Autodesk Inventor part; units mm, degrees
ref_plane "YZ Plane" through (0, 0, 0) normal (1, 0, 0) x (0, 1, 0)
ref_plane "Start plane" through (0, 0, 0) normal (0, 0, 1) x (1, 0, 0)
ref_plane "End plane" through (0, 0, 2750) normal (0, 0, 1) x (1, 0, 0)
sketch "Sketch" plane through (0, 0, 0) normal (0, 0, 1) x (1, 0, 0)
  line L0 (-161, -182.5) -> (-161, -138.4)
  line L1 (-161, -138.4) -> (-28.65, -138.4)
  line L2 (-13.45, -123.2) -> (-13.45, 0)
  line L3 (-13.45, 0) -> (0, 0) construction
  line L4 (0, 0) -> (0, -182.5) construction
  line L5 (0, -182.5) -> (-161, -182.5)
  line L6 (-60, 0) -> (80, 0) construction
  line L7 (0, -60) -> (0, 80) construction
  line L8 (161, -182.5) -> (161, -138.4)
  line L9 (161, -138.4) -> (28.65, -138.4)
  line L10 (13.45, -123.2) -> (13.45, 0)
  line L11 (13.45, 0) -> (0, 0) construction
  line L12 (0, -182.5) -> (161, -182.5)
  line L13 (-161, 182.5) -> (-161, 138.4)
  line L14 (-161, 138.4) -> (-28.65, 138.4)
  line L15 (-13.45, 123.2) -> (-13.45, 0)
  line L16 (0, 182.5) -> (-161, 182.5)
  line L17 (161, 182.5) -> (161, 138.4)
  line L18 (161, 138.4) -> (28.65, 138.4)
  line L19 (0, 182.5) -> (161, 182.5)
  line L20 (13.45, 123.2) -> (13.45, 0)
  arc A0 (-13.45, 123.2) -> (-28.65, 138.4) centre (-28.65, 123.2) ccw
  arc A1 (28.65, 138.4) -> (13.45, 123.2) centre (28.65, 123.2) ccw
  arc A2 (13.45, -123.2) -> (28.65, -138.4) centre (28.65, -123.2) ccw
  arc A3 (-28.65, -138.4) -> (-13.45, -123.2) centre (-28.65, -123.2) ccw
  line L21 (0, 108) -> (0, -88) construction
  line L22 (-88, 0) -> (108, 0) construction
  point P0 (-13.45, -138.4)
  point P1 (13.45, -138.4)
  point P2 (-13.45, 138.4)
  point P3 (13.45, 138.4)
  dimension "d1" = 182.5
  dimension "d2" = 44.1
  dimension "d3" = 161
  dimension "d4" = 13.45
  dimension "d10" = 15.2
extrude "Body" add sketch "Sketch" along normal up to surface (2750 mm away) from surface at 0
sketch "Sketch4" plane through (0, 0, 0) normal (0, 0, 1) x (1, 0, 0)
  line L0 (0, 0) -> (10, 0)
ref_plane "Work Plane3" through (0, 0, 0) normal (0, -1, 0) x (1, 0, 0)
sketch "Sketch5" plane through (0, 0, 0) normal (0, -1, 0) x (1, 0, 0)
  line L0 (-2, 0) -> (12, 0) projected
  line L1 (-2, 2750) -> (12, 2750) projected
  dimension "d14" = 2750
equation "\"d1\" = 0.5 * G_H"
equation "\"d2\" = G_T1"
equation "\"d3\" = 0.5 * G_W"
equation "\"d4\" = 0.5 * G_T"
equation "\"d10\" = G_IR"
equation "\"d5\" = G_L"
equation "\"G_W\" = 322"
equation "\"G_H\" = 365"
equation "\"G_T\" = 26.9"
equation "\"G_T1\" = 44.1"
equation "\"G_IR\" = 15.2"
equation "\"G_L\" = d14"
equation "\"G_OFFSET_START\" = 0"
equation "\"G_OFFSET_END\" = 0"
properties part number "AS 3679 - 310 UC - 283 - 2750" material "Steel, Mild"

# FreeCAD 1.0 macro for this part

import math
import FreeCAD as App
import Part
import Sketcher
from FreeCAD import Vector

doc = App.newDocument("Part")
body = doc.addObject("PartDesign::Body", "Body")

# Sketch on XY plane
sketch1 = body.newObject("Sketcher::SketchObject", "Sketch")
sketch1.AttachmentSupport = (doc.getObject("XY_Plane"), [""])
sketch1.MapMode = "FlatFace"
sketch1.addGeometry([
    Part.LineSegment(Vector(-161, -138, 0), Vector(-161, -182, 0)),  # 0
    Part.LineSegment(Vector(-161, -182, 0), Vector(161, -182, 0)),  # 1
    Part.LineSegment(Vector(161, -182, 0), Vector(161, -138, 0)),  # 2
    Part.LineSegment(Vector(161, -138, 0), Vector(29, -138, 0)),  # 3
    Part.ArcOfCircle(Part.Circle(Vector(29, -123, 0), Vector(0, 0, 1), 15), math.radians(180), math.radians(270)),  # 4
    Part.LineSegment(Vector(13, -123, 0), Vector(13, 123, 0)),  # 5
    Part.ArcOfCircle(Part.Circle(Vector(29, 123, 0), Vector(0, 0, 1), 15), math.radians(90), math.radians(180)),  # 6
    Part.LineSegment(Vector(29, 138, 0), Vector(161, 138, 0)),  # 7
    Part.LineSegment(Vector(161, 138, 0), Vector(161, 182, 0)),  # 8
    Part.LineSegment(Vector(161, 182, 0), Vector(-161, 182, 0)),  # 9
    Part.LineSegment(Vector(-161, 182, 0), Vector(-161, 138, 0)),  # 10
    Part.LineSegment(Vector(-161, 138, 0), Vector(-29, 138, 0)),  # 11
    Part.ArcOfCircle(Part.Circle(Vector(-29, 123, 0), Vector(0, 0, 1), 15), math.radians(0), math.radians(90)),  # 12
    Part.LineSegment(Vector(-13, 123, 0), Vector(-13, -123, 0)),  # 13
    Part.ArcOfCircle(Part.Circle(Vector(-29, -123, 0), Vector(0, 0, 1), 15), math.radians(-90), math.radians(0)),  # 14
    Part.LineSegment(Vector(-29, -138, 0), Vector(-161, -138, 0)),  # 15
], False)
sketch1.addConstraint([
    Sketcher.Constraint("Coincident", 0, 2, 1, 1),
    Sketcher.Constraint("Coincident", 1, 2, 2, 1),
    Sketcher.Constraint("Coincident", 2, 2, 3, 1),
    Sketcher.Constraint("Tangent", 3, 2, 4, 2),
    Sketcher.Constraint("Tangent", 4, 1, 5, 1),
    Sketcher.Constraint("Tangent", 5, 2, 6, 2),
    Sketcher.Constraint("Tangent", 6, 1, 7, 1),
    Sketcher.Constraint("Coincident", 7, 2, 8, 1),
    Sketcher.Constraint("Coincident", 8, 2, 9, 1),
    Sketcher.Constraint("Coincident", 9, 2, 10, 1),
    Sketcher.Constraint("Coincident", 10, 2, 11, 1),
    Sketcher.Constraint("Tangent", 11, 2, 12, 2),
    Sketcher.Constraint("Tangent", 12, 1, 13, 1),
    Sketcher.Constraint("Tangent", 13, 2, 14, 2),
    Sketcher.Constraint("Tangent", 14, 1, 15, 1),
    Sketcher.Constraint("Coincident", 15, 2, 0, 1),
    Sketcher.Constraint("Vertical", 0),
    Sketcher.Constraint("Horizontal", 1),
    Sketcher.Constraint("Vertical", 2),
    Sketcher.Constraint("Horizontal", 3),
    Sketcher.Constraint("Vertical", 5),
    Sketcher.Constraint("Horizontal", 7),
    Sketcher.Constraint("Vertical", 8),
    Sketcher.Constraint("Horizontal", 9),
    Sketcher.Constraint("Vertical", 10),
    Sketcher.Constraint("Horizontal", 11),
    Sketcher.Constraint("Vertical", 13),
    Sketcher.Constraint("Horizontal", 15),
    Sketcher.Constraint("Equal", 4, 6),
    Sketcher.Constraint("Equal", 6, 12),
    Sketcher.Constraint("Equal", 12, 14),
    Sketcher.Constraint("Symmetric", 4, 3, 12, 3, -1, 1),
    Sketcher.Constraint("Symmetric", 0, 2, 8, 2, -1, 1),
    Sketcher.Constraint("Symmetric", 7, 2, 10, 2, -2),
    Sketcher.Constraint("Symmetric", 2, 2, 15, 2, -2),
    Sketcher.Constraint("Radius", 4, 15.2),
    Sketcher.Constraint("DistanceY", 0, 2, 0, 1, 44.1),
    Sketcher.Constraint("DistanceX", 0, 2, -1, 1, 161.0),
    Sketcher.Constraint("DistanceY", 0, 2, -1, 1, 182.5),
    Sketcher.Constraint("DistanceX", -1, 1, 4, 1, 13.45),
])
pad1 = body.newObject("PartDesign::Pad", "Pad")
pad1.Profile = sketch1
pad1.Length = 2750

doc.recompute()
